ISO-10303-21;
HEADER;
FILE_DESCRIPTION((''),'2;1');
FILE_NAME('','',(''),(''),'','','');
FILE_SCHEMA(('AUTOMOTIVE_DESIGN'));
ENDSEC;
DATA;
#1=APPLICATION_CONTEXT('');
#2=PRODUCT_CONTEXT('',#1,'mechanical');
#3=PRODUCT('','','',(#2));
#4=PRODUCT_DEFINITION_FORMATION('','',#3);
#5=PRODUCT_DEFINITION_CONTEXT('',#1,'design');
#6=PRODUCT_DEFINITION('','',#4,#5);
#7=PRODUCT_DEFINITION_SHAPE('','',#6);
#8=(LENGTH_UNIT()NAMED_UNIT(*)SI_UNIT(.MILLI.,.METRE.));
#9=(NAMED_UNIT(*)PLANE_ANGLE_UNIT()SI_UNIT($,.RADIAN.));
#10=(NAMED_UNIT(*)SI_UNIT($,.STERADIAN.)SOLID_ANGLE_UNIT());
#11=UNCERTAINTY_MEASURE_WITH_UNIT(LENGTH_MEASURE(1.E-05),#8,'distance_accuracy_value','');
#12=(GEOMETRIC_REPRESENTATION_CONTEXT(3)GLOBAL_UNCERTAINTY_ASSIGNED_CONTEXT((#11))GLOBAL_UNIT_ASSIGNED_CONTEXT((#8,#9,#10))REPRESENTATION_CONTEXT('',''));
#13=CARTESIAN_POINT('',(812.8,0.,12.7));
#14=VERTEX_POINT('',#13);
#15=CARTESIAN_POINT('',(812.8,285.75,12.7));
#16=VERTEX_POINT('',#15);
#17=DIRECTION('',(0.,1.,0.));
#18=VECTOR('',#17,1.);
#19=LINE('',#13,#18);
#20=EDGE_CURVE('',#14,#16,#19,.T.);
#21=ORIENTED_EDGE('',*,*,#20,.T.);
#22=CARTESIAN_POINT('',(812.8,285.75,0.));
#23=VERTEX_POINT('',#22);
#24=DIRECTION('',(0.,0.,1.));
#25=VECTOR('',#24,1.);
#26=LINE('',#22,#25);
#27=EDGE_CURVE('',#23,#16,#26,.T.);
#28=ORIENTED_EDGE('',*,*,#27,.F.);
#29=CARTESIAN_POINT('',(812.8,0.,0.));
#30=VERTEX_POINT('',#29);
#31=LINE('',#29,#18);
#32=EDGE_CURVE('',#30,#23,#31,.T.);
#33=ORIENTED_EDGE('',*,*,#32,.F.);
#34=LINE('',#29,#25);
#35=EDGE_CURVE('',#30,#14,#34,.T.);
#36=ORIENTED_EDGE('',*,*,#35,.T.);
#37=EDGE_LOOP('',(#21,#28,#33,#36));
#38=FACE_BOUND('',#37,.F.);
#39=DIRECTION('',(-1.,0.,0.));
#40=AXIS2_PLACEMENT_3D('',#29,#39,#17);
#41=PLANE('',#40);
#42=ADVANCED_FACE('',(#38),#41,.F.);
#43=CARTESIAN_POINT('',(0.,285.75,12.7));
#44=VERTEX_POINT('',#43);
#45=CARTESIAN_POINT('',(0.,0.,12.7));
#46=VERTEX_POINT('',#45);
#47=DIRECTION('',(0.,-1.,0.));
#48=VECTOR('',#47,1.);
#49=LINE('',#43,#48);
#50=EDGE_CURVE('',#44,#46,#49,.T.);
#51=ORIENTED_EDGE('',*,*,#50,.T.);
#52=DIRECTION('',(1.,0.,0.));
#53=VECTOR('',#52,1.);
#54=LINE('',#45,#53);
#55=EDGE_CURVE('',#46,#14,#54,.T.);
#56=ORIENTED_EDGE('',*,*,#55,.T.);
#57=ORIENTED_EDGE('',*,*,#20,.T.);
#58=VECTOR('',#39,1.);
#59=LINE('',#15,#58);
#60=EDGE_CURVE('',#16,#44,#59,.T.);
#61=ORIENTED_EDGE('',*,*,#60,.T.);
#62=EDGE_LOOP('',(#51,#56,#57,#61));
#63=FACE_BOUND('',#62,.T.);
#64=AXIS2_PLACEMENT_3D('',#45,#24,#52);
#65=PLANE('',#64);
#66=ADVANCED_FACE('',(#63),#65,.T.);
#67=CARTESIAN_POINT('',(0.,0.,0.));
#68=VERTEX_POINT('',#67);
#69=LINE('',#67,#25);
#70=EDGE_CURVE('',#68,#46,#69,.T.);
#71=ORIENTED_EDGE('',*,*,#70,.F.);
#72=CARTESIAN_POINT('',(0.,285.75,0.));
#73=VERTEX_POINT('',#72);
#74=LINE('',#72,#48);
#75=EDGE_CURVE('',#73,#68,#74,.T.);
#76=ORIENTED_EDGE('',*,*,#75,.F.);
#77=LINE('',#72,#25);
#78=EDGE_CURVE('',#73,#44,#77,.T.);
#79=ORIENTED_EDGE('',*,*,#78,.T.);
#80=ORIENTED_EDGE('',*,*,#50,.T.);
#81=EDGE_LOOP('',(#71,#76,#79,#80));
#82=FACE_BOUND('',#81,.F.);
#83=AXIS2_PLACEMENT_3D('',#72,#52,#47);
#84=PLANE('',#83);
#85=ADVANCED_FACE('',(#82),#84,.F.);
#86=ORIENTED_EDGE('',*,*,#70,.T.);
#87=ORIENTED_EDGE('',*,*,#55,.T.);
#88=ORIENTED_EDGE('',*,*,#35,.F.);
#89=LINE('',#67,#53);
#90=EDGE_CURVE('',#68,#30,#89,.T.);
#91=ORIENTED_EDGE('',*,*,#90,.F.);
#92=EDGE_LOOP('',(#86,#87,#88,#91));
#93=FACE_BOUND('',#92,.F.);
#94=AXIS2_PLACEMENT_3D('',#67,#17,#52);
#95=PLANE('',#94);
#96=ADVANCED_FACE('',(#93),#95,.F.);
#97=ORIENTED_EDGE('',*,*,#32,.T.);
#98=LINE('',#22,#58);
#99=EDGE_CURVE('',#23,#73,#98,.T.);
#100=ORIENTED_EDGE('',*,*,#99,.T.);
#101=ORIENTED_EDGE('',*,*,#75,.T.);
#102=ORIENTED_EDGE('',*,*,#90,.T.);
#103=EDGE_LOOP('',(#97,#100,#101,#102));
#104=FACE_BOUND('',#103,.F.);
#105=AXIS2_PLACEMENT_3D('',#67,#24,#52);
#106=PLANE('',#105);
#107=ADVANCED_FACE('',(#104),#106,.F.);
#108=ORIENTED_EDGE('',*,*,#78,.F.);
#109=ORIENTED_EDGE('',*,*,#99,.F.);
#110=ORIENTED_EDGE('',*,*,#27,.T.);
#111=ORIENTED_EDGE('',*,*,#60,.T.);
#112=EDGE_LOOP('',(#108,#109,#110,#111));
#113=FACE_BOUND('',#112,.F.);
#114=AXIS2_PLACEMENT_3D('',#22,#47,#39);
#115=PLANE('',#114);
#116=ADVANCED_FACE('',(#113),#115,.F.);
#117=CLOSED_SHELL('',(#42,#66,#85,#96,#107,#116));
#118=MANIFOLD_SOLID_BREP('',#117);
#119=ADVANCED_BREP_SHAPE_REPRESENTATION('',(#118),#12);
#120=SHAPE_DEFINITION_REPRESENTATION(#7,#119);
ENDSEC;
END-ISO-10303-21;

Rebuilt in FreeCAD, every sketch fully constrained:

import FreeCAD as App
import Part
import Sketcher
from FreeCAD import Vector
Q = App.Units.Quantity


def add_polygon(sketch, points):
    """Adds a closed chain of lines whose ends are joined by coincident constraints."""
    first, n = sketch.GeometryCount, len(points)
    for a, b in zip(points, points[1:] + points[:1]):
        sketch.addGeometry(Part.LineSegment(App.Vector(*a, 0), App.Vector(*b, 0)), False)
    for i in range(n):
        sketch.addConstraint(Sketcher.Constraint("Coincident", first + i, 2, first + (i + 1) % n, 1))

doc = App.newDocument("Part")
body = doc.addObject("PartDesign::Body", "Body")

# Sketch on XY plane
sketch1 = body.newObject("Sketcher::SketchObject", "Sketch")
sketch1.AttachmentSupport = (doc.getObject("XY_Plane"), [""])
sketch1.MapMode = "FlatFace"
add_polygon(sketch1, [(0, 285.75), (0, 0), (812.8, 0), (812.8, 285.75)])  # lines 0-3
sketch1.addConstraint([
    Sketcher.Constraint("Vertical", 0),
    Sketcher.Constraint("Horizontal", 1),
    Sketcher.Constraint("Vertical", 2),
    Sketcher.Constraint("Horizontal", 3),
    Sketcher.Constraint("Coincident", 0, 2, -1, 1),
    Sketcher.Constraint("DistanceX", 1, 1, 1, 2, Q("32 in")),
    Sketcher.Constraint("DistanceY", 0, 2, 0, 1, Q("11.25 in")),
])
pad1 = body.newObject("PartDesign::Pad", "Pad")
pad1.Profile = sketch1
pad1.Length = Q("0.5 in")

doc.recompute()
